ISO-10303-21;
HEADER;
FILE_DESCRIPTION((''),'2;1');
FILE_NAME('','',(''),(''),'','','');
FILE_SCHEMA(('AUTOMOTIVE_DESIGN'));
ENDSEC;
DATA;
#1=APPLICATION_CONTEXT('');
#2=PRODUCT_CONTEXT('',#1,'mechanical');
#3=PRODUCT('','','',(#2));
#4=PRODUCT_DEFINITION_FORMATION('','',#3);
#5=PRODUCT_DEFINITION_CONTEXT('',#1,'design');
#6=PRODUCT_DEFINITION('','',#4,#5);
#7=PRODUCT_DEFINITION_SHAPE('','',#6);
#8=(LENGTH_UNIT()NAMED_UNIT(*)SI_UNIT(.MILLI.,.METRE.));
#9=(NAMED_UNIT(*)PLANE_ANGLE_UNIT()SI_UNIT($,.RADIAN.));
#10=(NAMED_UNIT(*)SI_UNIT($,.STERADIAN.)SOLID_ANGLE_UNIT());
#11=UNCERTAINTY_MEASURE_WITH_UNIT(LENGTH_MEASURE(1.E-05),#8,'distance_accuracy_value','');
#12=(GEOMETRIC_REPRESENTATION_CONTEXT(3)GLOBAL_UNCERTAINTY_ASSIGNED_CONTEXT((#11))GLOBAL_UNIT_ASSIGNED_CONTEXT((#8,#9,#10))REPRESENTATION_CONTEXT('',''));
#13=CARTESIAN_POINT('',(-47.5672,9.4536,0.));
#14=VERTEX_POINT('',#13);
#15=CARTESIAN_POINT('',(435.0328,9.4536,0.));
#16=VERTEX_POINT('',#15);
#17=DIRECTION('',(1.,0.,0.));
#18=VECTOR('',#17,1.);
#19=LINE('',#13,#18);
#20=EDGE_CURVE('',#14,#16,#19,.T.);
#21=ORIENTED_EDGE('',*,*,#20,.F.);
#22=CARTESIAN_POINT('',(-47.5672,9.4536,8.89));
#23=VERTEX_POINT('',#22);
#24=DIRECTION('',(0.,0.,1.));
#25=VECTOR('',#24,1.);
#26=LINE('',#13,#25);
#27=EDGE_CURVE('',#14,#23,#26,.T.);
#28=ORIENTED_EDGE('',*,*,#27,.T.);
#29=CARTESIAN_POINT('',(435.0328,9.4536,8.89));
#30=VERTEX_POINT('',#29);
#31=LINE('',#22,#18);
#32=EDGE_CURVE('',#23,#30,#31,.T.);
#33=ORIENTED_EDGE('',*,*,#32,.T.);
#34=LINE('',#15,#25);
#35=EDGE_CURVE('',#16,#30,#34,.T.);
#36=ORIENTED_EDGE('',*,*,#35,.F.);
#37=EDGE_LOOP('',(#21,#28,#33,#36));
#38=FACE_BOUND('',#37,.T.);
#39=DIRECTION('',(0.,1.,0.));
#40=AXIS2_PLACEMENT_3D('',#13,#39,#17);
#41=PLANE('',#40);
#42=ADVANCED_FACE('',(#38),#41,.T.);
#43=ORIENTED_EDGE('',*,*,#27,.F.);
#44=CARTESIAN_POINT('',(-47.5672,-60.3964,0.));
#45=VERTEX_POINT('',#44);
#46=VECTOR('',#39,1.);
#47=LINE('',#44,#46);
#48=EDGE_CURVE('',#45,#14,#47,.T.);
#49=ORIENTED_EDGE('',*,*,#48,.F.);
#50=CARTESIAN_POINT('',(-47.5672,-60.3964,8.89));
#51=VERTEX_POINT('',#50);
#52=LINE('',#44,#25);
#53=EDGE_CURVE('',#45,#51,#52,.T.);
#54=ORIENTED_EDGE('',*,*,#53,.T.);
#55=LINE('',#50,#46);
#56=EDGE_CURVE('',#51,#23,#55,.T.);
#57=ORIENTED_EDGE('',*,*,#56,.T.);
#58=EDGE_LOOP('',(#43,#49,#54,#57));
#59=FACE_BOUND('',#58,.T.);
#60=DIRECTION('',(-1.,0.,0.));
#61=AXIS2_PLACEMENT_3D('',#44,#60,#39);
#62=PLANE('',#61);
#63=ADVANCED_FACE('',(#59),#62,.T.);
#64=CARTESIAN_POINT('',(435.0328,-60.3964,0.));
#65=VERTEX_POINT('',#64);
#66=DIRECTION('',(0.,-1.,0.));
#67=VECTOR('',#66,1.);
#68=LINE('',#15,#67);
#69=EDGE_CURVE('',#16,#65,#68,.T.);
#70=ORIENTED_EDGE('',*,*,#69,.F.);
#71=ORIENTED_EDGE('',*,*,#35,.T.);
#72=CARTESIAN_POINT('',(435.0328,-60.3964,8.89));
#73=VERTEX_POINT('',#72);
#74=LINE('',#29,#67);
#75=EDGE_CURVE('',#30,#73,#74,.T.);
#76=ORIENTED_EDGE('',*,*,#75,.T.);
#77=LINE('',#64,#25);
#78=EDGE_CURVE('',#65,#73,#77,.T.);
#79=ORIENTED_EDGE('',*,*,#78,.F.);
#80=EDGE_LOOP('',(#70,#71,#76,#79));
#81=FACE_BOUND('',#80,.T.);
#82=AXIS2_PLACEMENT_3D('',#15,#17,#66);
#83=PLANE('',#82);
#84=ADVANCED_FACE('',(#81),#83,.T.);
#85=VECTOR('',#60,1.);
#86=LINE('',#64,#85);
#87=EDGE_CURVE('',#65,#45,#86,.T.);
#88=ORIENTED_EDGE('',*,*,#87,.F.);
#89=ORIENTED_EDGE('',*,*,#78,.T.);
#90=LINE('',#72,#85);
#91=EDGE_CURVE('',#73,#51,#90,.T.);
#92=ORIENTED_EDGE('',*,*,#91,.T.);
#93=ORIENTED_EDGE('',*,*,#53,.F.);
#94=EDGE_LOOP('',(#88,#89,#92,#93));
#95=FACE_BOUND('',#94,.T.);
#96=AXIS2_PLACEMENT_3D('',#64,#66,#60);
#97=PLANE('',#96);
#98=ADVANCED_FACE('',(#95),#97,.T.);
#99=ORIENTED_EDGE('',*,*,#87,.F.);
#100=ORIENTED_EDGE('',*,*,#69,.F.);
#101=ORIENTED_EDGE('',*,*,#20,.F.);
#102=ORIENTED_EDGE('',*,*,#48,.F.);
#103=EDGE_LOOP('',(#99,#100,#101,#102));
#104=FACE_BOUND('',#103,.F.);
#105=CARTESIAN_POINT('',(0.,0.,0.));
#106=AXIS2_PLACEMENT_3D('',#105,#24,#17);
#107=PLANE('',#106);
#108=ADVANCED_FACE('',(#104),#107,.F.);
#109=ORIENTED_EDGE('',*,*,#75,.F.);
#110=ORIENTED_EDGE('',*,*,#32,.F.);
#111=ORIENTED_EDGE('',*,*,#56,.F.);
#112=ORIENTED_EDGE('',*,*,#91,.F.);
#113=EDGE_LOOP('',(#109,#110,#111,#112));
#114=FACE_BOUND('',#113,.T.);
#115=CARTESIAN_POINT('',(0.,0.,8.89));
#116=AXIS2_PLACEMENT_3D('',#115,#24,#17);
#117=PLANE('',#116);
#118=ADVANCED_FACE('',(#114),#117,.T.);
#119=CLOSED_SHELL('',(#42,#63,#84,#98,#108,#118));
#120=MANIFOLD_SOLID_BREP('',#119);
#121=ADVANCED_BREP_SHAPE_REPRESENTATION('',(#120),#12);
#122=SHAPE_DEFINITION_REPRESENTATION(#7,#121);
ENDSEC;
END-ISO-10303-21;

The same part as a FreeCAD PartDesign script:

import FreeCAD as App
import Part
import Sketcher

V = App.Vector
Q = App.Units.Quantity


def add_polygon(sketch, points):
    """Adds a closed chain of lines whose ends are joined by coincident constraints."""
    first, n = sketch.GeometryCount, len(points)
    for a, b in zip(points, points[1:] + points[:1]):
        sketch.addGeometry(Part.LineSegment(App.Vector(*a, 0), App.Vector(*b, 0)), False)
    for i in range(n):
        sketch.addConstraint(Sketcher.Constraint("Coincident", first + i, 2, first + (i + 1) % n, 1))

doc = App.newDocument("Part")
params = doc.addObject("Spreadsheet::Sheet", "Params")
for row, (alias, value) in enumerate([
    ("sketch1_width", "19 in"),
    ("sketch1_height", "2.75 in"),
    ("pad1_length", "0.35 in"),
], start=1):
    params.set(f"A{row}", alias)
    params.set(f"B{row}", "=" + value)
    params.setAlias(f"B{row}", alias)

body = doc.addObject("PartDesign::Body", "Body")

sketch1 = body.newObject("Sketcher::SketchObject", "Sketch")
sketch1.AttachmentSupport = (doc.getObject("XY_Plane"), [""])
sketch1.MapMode = "FlatFace"
add_polygon(sketch1, [(435, 9), (-48, 9), (-48, -60), (435, -60)])
sketch1.addConstraint([
    Sketcher.Constraint("Horizontal", 0),
    Sketcher.Constraint("Vertical", 1),
    Sketcher.Constraint("Horizontal", 2),
    Sketcher.Constraint("Vertical", 3),
    Sketcher.Constraint("DistanceX", 0, 2, 0, 1, Q("19 in")),
    Sketcher.Constraint("DistanceY", 1, 2, 1, 1, Q("2.75 in")),
    Sketcher.Constraint("DistanceY", -1, 1, 0, 2, Q("0.3722 in")),
    Sketcher.Constraint("DistanceX", 0, 2, -1, 1, Q("47.5672 mm")),
])
sketch1.setExpression("Constraints[8]", "Params.sketch1_width")
sketch1.setExpression("Constraints[9]", "Params.sketch1_height")
pad1 = body.newObject("PartDesign::Pad", "Pad")
pad1.Profile = sketch1
pad1.setExpression("Length", "Params.pad1_length")

doc.recompute()
